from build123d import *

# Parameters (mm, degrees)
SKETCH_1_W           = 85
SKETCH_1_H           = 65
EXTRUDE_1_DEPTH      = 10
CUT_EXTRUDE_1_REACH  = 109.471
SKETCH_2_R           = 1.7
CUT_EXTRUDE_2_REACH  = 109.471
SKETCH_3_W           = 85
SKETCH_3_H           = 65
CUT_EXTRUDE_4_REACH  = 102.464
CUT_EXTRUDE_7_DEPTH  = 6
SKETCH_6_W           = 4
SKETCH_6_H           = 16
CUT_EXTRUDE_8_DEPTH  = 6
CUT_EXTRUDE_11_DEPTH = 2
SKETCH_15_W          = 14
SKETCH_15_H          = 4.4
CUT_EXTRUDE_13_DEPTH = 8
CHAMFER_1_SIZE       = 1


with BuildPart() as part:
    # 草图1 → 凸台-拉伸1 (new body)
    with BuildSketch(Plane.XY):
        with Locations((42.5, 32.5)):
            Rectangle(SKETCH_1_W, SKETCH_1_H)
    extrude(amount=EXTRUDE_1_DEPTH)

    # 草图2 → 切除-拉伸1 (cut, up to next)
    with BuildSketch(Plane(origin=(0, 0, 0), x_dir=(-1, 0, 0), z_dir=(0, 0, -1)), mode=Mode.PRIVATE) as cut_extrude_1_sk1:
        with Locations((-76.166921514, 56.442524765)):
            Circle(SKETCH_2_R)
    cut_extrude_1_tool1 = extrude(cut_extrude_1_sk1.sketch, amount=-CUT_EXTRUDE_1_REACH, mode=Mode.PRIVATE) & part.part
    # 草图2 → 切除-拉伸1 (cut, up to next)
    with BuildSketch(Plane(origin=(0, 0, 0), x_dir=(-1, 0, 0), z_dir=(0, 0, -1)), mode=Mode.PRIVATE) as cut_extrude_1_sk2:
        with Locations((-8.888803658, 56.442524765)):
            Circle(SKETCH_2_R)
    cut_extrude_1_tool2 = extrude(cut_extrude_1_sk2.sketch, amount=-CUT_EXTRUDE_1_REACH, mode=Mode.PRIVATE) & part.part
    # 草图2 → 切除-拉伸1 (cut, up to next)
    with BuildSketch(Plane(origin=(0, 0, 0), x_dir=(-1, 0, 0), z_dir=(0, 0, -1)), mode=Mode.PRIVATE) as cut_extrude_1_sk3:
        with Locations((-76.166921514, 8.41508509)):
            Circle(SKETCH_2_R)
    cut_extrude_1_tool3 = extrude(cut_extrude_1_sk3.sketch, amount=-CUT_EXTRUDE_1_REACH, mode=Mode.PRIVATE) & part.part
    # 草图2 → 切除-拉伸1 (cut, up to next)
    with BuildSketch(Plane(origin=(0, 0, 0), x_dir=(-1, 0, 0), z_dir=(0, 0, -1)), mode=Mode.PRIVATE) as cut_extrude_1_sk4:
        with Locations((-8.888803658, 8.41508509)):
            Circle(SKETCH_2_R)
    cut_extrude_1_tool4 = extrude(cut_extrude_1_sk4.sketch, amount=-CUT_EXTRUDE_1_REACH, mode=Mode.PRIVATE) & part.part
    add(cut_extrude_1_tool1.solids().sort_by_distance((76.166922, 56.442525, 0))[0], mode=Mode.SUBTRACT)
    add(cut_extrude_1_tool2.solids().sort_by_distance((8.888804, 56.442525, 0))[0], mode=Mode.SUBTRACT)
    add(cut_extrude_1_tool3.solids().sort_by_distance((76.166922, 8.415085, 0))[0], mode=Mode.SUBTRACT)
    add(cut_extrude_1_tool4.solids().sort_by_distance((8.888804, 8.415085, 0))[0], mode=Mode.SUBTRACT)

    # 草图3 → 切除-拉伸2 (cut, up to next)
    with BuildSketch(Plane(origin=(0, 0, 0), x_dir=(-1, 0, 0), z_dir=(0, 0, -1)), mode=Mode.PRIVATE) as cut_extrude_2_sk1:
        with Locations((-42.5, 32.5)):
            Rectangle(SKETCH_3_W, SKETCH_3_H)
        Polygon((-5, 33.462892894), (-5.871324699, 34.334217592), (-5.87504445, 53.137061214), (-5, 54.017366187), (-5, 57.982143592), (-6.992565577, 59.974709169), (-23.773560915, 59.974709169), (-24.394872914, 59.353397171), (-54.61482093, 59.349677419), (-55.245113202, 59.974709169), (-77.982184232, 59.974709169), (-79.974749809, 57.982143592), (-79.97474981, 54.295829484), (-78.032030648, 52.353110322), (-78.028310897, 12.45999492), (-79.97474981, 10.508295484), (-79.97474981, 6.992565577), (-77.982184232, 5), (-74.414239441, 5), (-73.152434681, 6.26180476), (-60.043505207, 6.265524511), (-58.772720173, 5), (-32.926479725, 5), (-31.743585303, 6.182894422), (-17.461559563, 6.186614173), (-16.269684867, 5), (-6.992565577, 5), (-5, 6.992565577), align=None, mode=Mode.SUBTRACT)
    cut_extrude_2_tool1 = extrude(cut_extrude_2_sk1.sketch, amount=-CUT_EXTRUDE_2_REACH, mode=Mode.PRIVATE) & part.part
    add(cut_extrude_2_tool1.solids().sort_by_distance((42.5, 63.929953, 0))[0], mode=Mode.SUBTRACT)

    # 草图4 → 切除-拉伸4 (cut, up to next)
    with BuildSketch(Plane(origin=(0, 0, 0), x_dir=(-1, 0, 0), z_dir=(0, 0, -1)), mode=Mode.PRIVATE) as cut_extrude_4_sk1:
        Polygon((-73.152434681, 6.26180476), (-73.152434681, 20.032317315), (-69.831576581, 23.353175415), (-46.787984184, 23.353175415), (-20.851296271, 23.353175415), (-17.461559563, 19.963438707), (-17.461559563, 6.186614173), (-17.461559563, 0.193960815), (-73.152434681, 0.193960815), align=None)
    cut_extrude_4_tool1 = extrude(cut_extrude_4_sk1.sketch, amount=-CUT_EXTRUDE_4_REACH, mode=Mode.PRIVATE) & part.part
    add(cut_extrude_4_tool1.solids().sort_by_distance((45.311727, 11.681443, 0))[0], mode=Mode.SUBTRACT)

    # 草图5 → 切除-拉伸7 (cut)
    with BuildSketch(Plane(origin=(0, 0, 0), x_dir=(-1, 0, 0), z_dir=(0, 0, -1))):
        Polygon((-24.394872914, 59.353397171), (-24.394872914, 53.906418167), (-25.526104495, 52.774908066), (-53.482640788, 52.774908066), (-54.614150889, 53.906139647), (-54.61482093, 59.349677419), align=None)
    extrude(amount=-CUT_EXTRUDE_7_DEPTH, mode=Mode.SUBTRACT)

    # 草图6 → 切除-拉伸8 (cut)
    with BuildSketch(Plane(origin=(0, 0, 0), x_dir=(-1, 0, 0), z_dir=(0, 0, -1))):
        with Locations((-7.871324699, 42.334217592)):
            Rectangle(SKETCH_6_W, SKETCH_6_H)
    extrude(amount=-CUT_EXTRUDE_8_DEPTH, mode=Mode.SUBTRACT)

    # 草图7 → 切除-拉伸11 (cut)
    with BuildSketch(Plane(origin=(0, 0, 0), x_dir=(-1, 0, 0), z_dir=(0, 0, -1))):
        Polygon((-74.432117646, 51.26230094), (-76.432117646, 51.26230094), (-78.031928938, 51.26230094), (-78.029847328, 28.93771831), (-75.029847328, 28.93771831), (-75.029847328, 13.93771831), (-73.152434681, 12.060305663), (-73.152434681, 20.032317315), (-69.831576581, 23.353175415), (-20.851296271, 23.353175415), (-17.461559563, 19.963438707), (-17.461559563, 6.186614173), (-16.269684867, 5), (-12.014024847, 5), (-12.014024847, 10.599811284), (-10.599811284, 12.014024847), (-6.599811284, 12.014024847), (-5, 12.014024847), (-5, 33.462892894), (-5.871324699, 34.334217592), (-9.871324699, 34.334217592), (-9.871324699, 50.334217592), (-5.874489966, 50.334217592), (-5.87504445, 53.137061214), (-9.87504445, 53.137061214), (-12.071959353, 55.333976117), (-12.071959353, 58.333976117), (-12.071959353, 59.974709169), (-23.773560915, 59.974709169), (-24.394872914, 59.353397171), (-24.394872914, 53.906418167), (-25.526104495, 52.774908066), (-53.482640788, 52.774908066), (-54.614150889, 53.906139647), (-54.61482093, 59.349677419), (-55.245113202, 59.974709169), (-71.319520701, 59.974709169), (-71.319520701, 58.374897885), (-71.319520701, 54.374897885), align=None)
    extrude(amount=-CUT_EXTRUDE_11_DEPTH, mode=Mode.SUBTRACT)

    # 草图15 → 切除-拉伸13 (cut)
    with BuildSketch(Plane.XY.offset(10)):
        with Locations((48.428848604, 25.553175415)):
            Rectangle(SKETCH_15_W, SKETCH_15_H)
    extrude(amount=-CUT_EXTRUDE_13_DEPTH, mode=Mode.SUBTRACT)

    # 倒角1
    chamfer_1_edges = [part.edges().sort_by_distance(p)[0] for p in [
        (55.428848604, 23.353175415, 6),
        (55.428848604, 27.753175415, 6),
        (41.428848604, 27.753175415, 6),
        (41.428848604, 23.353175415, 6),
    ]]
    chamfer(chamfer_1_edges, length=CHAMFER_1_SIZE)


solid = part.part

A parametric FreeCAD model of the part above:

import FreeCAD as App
import Part
import Sketcher
Q = App.Units.Quantity


def edges_at(feature, points):
    """Names of the edges that pass closest to the given points."""
    edges = feature.Shape.Edges
    near = lambda p: min(range(len(edges)), key=lambda i: edges[i].distToShape(Part.Vertex(*p))[0])
    return sorted({f"Edge{near(p) + 1}" for p in points})


def add_polygon(sketch, points):
    """Adds a closed chain of lines whose ends are joined by coincident constraints."""
    first, n = sketch.GeometryCount, len(points)
    for a, b in zip(points, points[1:] + points[:1]):
        sketch.addGeometry(Part.LineSegment(App.Vector(*a, 0), App.Vector(*b, 0)), False)
    for i in range(n):
        sketch.addConstraint(Sketcher.Constraint("Coincident", first + i, 2, first + (i + 1) % n, 1))

doc = App.newDocument("Part")
body = doc.addObject("PartDesign::Body", "Body")

sketch1 = doc.addObject("Sketcher::SketchObject", "Sketch")
body.addObject(sketch1)
sketch1.AttachmentSupport = (doc.XY_Plane, [""])
sketch1.MapMode = "FlatFace"
add_polygon(sketch1, [(0, 65), (0, 0), (85, 0), (85, 65)])
sketch1.addConstraint([
    Sketcher.Constraint("Vertical", 0),
    Sketcher.Constraint("Horizontal", 1),
    Sketcher.Constraint("Vertical", 2),
    Sketcher.Constraint("Horizontal", 3),
    Sketcher.Constraint("Coincident", 0, 2, -1, 1),
    Sketcher.Constraint("DistanceX", 1, 1, 1, 2, Q("85 mm")),
    Sketcher.Constraint("DistanceY", 0, 2, 0, 1, Q("65 mm")),
])
pad1 = doc.addObject("PartDesign::Pad", "Pad")
body.addObject(pad1)
pad1.Profile = sketch1
pad1.Length = 10

sketch2 = doc.addObject("Sketcher::SketchObject", "Sketch001")
body.addObject(sketch2)
sketch2.AttachmentSupport = (doc.XY_Plane, [""])
sketch2.MapMode = "FlatFace"
sketch2.addGeometry(Part.Circle(App.Vector(76.166922, 56.442525, 0), App.Vector(0, 0, 1), 1.7), False)
sketch2.addConstraint([
    Sketcher.Constraint("Diameter", 0, Q("3.4 mm")),
    Sketcher.Constraint("DistanceX", -1, 1, 0, 3, Q("76.166922 mm")),
    Sketcher.Constraint("DistanceY", -1, 1, 0, 3, Q("56.442525 mm")),
])
pocket1 = doc.addObject("PartDesign::Pocket", "Pocket")
body.addObject(pocket1)
pocket1.Profile = sketch2
pocket1.Type = "UpToFirst"
pocket1.Reversed = True

sketch3 = doc.addObject("Sketcher::SketchObject", "Sketch002")
body.addObject(sketch3)
sketch3.AttachmentSupport = (doc.XY_Plane, [""])
sketch3.MapMode = "FlatFace"
sketch3.addGeometry(Part.Circle(App.Vector(8.888804, 56.442525, 0), App.Vector(0, 0, 1), 1.7), False)
sketch3.addConstraint([
    Sketcher.Constraint("Diameter", 0, Q("3.4 mm")),
    Sketcher.Constraint("DistanceX", -1, 1, 0, 3, Q("8.888804 mm")),
    Sketcher.Constraint("DistanceY", -1, 1, 0, 3, Q("56.442525 mm")),
])
pocket2 = doc.addObject("PartDesign::Pocket", "Pocket001")
body.addObject(pocket2)
pocket2.Profile = sketch3
pocket2.Type = "UpToFirst"
pocket2.Reversed = True

sketch4 = doc.addObject("Sketcher::SketchObject", "Sketch003")
body.addObject(sketch4)
sketch4.AttachmentSupport = (doc.XY_Plane, [""])
sketch4.MapMode = "FlatFace"
sketch4.addGeometry(Part.Circle(App.Vector(76.166922, 8.415085, 0), App.Vector(0, 0, 1), 1.7), False)
sketch4.addConstraint([
    Sketcher.Constraint("Diameter", 0, Q("3.4 mm")),
    Sketcher.Constraint("DistanceX", -1, 1, 0, 3, Q("76.166922 mm")),
    Sketcher.Constraint("DistanceY", -1, 1, 0, 3, Q("8.415085 mm")),
])
pocket3 = doc.addObject("PartDesign::Pocket", "Pocket002")
body.addObject(pocket3)
pocket3.Profile = sketch4
pocket3.Type = "UpToFirst"
pocket3.Reversed = True

sketch5 = doc.addObject("Sketcher::SketchObject", "Sketch004")
body.addObject(sketch5)
sketch5.AttachmentSupport = (doc.XY_Plane, [""])
sketch5.MapMode = "FlatFace"
sketch5.addGeometry(Part.Circle(App.Vector(8.888804, 8.415085, 0), App.Vector(0, 0, 1), 1.7), False)
sketch5.addConstraint([
    Sketcher.Constraint("Diameter", 0, Q("3.4 mm")),
    Sketcher.Constraint("DistanceX", -1, 1, 0, 3, Q("8.888804 mm")),
    Sketcher.Constraint("DistanceY", -1, 1, 0, 3, Q("8.415085 mm")),
])
pocket4 = doc.addObject("PartDesign::Pocket", "Pocket003")
body.addObject(pocket4)
pocket4.Profile = sketch5
pocket4.Type = "UpToFirst"
pocket4.Reversed = True

sketch6 = doc.addObject("Sketcher::SketchObject", "Sketch005")
body.addObject(sketch6)
sketch6.AttachmentSupport = (doc.XY_Plane, [""])
sketch6.MapMode = "FlatFace"
add_polygon(sketch6, [(85, 65), (85, 0), (0, 0), (0, 65)])
add_polygon(sketch6, [(5.871325, 34.334218), (5, 33.462893), (5, 6.992566), (6.992566, 5), (16.269685, 5), (17.46156, 6.186614), (31.743585, 6.182894), (32.92648, 5), (58.77272, 5), (60.043505, 6.265525), (73.152435, 6.261805), (74.414239, 5), (77.982184, 5), (79.97475, 6.992566), (79.97475, 10.508295), (78.028311, 12.459995), (78.032031, 52.35311), (79.97475, 54.295829), (79.97475, 57.982144), (77.982184, 59.974709), (55.245113, 59.974709), (54.614821, 59.349677), (24.394873, 59.353397), (23.773561, 59.974709), (6.992566, 59.974709), (5, 57.982144), (5, 54.017366), (5.875044, 53.137061)])
sketch6.addConstraint([
    Sketcher.Constraint("Vertical", 0),
    Sketcher.Constraint("Horizontal", 1),
    Sketcher.Constraint("Vertical", 2),
    Sketcher.Constraint("Horizontal", 3),
    Sketcher.Constraint("Vertical", 5),
    Sketcher.Constraint("Horizontal", 7),
    Sketcher.Constraint("Horizontal", 11),
    Sketcher.Constraint("Horizontal", 15),
    Sketcher.Constraint("Vertical", 17),
    Sketcher.Constraint("Vertical", 21),
    Sketcher.Constraint("Horizontal", 23),
    Sketcher.Constraint("Horizontal", 27),
    Sketcher.Constraint("Vertical", 29),
    Sketcher.Constraint("Coincident", 1, 2, -1, 1),
    Sketcher.Constraint("Perpendicular", 4, 6),
    Sketcher.Constraint("Parallel", 6, 10),
    Sketcher.Constraint("Parallel", 10, 14),
    Sketcher.Constraint("Perpendicular", 14, 16),
    Sketcher.Constraint("Parallel", 16, 20),
    Sketcher.Constraint("Perpendicular", 20, 22),
    Sketcher.Constraint("Parallel", 22, 26),
    Sketcher.Constraint("Perpendicular", 26, 28),
    Sketcher.Constraint("Horizontal", 7, 2, 10, 2),
    Sketcher.Constraint("Horizontal", 11, 2, 14, 2),
    Sketcher.Constraint("Horizontal", 5, 2, 16, 2),
    Sketcher.Constraint("Horizontal", 23, 2, 26, 2),
    Sketcher.Constraint("Horizontal", 21, 2, 28, 2),
    Sketcher.Constraint("Vertical", 17, 2, 20, 2),
    Sketcher.Constraint("Vertical", 15, 2, 22, 2),
    Sketcher.Constraint("Vertical", 6, 2, 27, 2),
    Sketcher.Constraint("Vertical", 5, 2, 28, 2),
    Sketcher.Constraint("DistanceX", 1, 2, 1, 1, Q("85 mm")),
    Sketcher.Constraint("DistanceY", 0, 2, 0, 1, Q("65 mm")),
    Sketcher.Constraint("DistanceX", -1, 1, 4, 2, Q("5 mm")),
    Sketcher.Constraint("DistanceY", -1, 1, 6, 2, Q("5 mm")),
    Sketcher.Constraint("DistanceX", 7, 1, 7, 2, Q("9.277119 mm")),
    Sketcher.Constraint("DistanceX", 11, 1, 11, 2, Q("25.84624 mm")),
    Sketcher.Constraint("DistanceX", 23, 2, 23, 1, Q("22.737071 mm")),
    Sketcher.Constraint("DistanceY", 17, 1, 17, 2, Q("3.51573 mm")),
    Sketcher.Constraint("DistanceX", 7, 2, 9, 2, Q("15.4739 mm")),
    Sketcher.Constraint("DistanceY", 17, 2, 18, 2, Q("1.951699 mm")),
    Sketcher.Constraint("DistanceY", 19, 2, 22, 2, Q("7.621599 mm")),
    Sketcher.Constraint("Distance", 4, Q("1.232239 mm")),
    Sketcher.Constraint("Distance", 8, Q("1.68185 mm")),
    Sketcher.Constraint("Distance", 13, Q("13.10893 mm")),
    Sketcher.Constraint("Distance", 14, Q("1.784461 mm")),
    Sketcher.Constraint("Distance", 20, Q("2.74742 mm")),
    Sketcher.Constraint("Distance", 25, Q("30.219948 mm")),
    Sketcher.Constraint("DistanceX", 15, 1, 15, 2, Q("3.567945 mm")),
    Sketcher.Constraint("DistanceX", 27, 2, 27, 1, Q("16.780995 mm")),
    Sketcher.Constraint("DistanceY", 5, 2, 5, 1, Q("26.470327 mm")),
    Sketcher.Constraint("DistanceY", 21, 1, 21, 2, Q("3.686314 mm")),
    Sketcher.Constraint("DistanceY", 29, 2, 29, 1, Q("3.964777 mm")),
    Sketcher.Constraint("DistanceX", -1, 1, 8, 2, Q("17.46156 mm")),
    Sketcher.Constraint("DistanceX", -1, 1, 10, 2, Q("32.92648 mm")),
    Sketcher.Constraint("DistanceX", -1, 1, 14, 2, Q("74.414239 mm")),
    Sketcher.Constraint("DistanceX", -1, 1, 18, 2, Q("78.028311 mm")),
    Sketcher.Constraint("DistanceY", -1, 1, 19, 2, Q("52.35311 mm")),
    Sketcher.Constraint("DistanceX", -1, 1, 24, 2, Q("54.614821 mm")),
    Sketcher.Constraint("DistanceY", -1, 1, 30, 2, Q("53.137061 mm")),
    Sketcher.Constraint("DistanceY", 9, 2, 12, 2, Q("0.08263 mm")),
    Sketcher.Constraint("DistanceY", 24, 2, 23, 2, Q("0.625032 mm")),
    Sketcher.Constraint("DistanceX", 30, 2, 27, 2, Q("1.117521 mm")),
])
pocket5 = doc.addObject("PartDesign::Pocket", "Pocket004")
body.addObject(pocket5)
pocket5.Profile = sketch6
pocket5.Type = "UpToFirst"
pocket5.Reversed = True

sketch7 = doc.addObject("Sketcher::SketchObject", "Sketch006")
body.addObject(sketch7)
sketch7.AttachmentSupport = (doc.XY_Plane, [""])
sketch7.MapMode = "FlatFace"
add_polygon(sketch7, [(73.152435, 20.032317), (73.152435, 0.193961), (17.46156, 0.193961), (17.46156, 19.963439), (20.851296, 23.353175), (69.831577, 23.353175)])
sketch7.addConstraint([
    Sketcher.Constraint("Vertical", 0),
    Sketcher.Constraint("Horizontal", 1),
    Sketcher.Constraint("Vertical", 2),
    Sketcher.Constraint("Horizontal", 4),
    Sketcher.Constraint("Perpendicular", 3, 5),
    Sketcher.Constraint("Angle", 3, Q("45 deg")),
    Sketcher.Constraint("DistanceX", 4, 1, 4, 2, Q("48.98028 mm")),
    Sketcher.Constraint("Distance", 3, Q("4.793812 mm")),
    Sketcher.Constraint("DistanceX", 1, 2, 1, 1, Q("55.690875 mm")),
    Sketcher.Constraint("DistanceY", 0, 2, 0, 1, Q("19.838356 mm")),
    Sketcher.Constraint("DistanceY", -1, 1, 0, 2, Q("0.193961 mm")),
    Sketcher.Constraint("DistanceX", -1, 1, 1, 2, Q("17.46156 mm")),
])
pocket6 = doc.addObject("PartDesign::Pocket", "Pocket005")
body.addObject(pocket6)
pocket6.Profile = sketch7
pocket6.Type = "UpToFirst"
pocket6.Reversed = True

sketch8 = doc.addObject("Sketcher::SketchObject", "Sketch007")
body.addObject(sketch8)
sketch8.AttachmentSupport = (doc.XY_Plane, [""])
sketch8.MapMode = "FlatFace"
add_polygon(sketch8, [(24.394873, 53.906418), (24.394873, 59.353397), (54.614821, 59.349677), (54.614151, 53.90614), (53.482641, 52.774908), (25.526104, 52.774908)])
sketch8.addConstraint([
    Sketcher.Constraint("Vertical", 0),
    Sketcher.Constraint("Horizontal", 4),
    Sketcher.Constraint("Perpendicular", 1, 2),
    Sketcher.Constraint("Perpendicular", 3, 5),
    Sketcher.Constraint("Equal", 3, 5),
    Sketcher.Constraint("Distance", 3, Q("1.6 mm")),
    Sketcher.Constraint("DistanceY", 0, 1, 0, 2, Q("5.446979 mm")),
    Sketcher.Constraint("Distance", 1, Q("30.219948 mm")),
    Sketcher.Constraint("DistanceX", 4, 2, 4, 1, Q("27.956536 mm")),
    Sketcher.Constraint("DistanceX", -1, 1, 1, 2, Q("54.614821 mm")),
    Sketcher.Constraint("DistanceY", -1, 1, 2, 2, Q("53.90614 mm")),
    Sketcher.Constraint("DistanceX", -1, 1, 3, 2, Q("53.482641 mm")),
])
pocket7 = doc.addObject("PartDesign::Pocket", "Pocket006")
body.addObject(pocket7)
pocket7.Profile = sketch8
pocket7.Length = 6
pocket7.Reversed = True

sketch9 = doc.addObject("Sketcher::SketchObject", "Sketch008")
body.addObject(sketch9)
sketch9.AttachmentSupport = (doc.XY_Plane, [""])
sketch9.MapMode = "FlatFace"
add_polygon(sketch9, [(9.871325, 50.334218), (9.871325, 34.334218), (5.871325, 34.334218), (5.871325, 50.334218)])
sketch9.addConstraint([
    Sketcher.Constraint("Vertical", 0),
    Sketcher.Constraint("Horizontal", 1),
    Sketcher.Constraint("Vertical", 2),
    Sketcher.Constraint("Horizontal", 3),
    Sketcher.Constraint("DistanceX", 1, 2, 1, 1, Q("4 mm")),
    Sketcher.Constraint("DistanceY", 0, 2, 0, 1, Q("16 mm")),
    Sketcher.Constraint("DistanceX", -1, 1, 0, 2, Q("9.871325 mm")),
    Sketcher.Constraint("DistanceY", -1, 1, 0, 2, Q("34.334218 mm")),
])
pocket8 = doc.addObject("PartDesign::Pocket", "Pocket007")
body.addObject(pocket8)
pocket8.Profile = sketch9
pocket8.Length = 6
pocket8.Reversed = True

sketch10 = doc.addObject("Sketcher::SketchObject", "Sketch009")
body.addObject(sketch10)
sketch10.AttachmentSupport = (doc.XY_Plane, [""])
sketch10.MapMode = "FlatFace"
add_polygon(sketch10, [(74.432118, 51.262301), (78.031929, 51.262301), (78.029847, 28.937718), (75.029847, 28.937718), (75.029847, 13.937718), (73.152435, 12.060306), (73.152435, 20.032317), (69.831577, 23.353175), (20.851296, 23.353175), (17.46156, 19.963439), (17.46156, 6.186614), (16.269685, 5), (12.014025, 5), (12.014025, 10.599811), (10.599811, 12.014025), (5, 12.014025), (5, 33.462893), (5.871325, 34.334218), (9.871325, 34.334218), (9.871325, 50.334218), (5.87449, 50.334218), (5.875044, 53.137061), (9.875044, 53.137061), (12.071959, 55.333976), (12.071959, 59.974709), (23.773561, 59.974709), (24.394873, 59.353397), (24.394873, 53.906418), (25.526104, 52.774908), (53.482641, 52.774908), (54.614151, 53.90614), (54.614821, 59.349677), (55.245113, 59.974709), (71.319521, 59.974709), (71.319521, 54.374898)])
sketch10.addConstraint([
    Sketcher.Constraint("Horizontal", 0),
    Sketcher.Constraint("Horizontal", 2),
    Sketcher.Constraint("Vertical", 3),
    Sketcher.Constraint("Vertical", 5),
    Sketcher.Constraint("Horizontal", 7),
    Sketcher.Constraint("Vertical", 9),
    Sketcher.Constraint("Horizontal", 11),
    Sketcher.Constraint("Vertical", 12),
    Sketcher.Constraint("Horizontal", 14),
    Sketcher.Constraint("Vertical", 15),
    Sketcher.Constraint("Horizontal", 17),
    Sketcher.Constraint("Vertical", 18),
    Sketcher.Constraint("Horizontal", 19),
    Sketcher.Constraint("Horizontal", 21),
    Sketcher.Constraint("Vertical", 23),
    Sketcher.Constraint("Horizontal", 24),
    Sketcher.Constraint("Vertical", 26),
    Sketcher.Constraint("Horizontal", 28),
    Sketcher.Constraint("Horizontal", 32),
    Sketcher.Constraint("Vertical", 33),
    Sketcher.Constraint("Perpendicular", 4, 6),
    Sketcher.Constraint("Perpendicular", 6, 8),
    Sketcher.Constraint("Perpendicular", 8, 13),
    Sketcher.Constraint("Perpendicular", 13, 16),
    Sketcher.Constraint("Parallel", 16, 22),
    Sketcher.Constraint("Perpendicular", 22, 25),
    Sketcher.Constraint("Perpendicular", 27, 29),
    Sketcher.Constraint("Parallel", 25, 34),
    Sketcher.Constraint("Horizontal", 24, 2, 31, 2),
    Sketcher.Constraint("Equal", 17, 21),
    Sketcher.Constraint("Equal", 14, 12),
    Sketcher.Constraint("Equal", 12, 33),
    Sketcher.Constraint("Equal", 27, 29),
    Sketcher.Constraint("DistanceX", 2, 2, 2, 1, Q("3 mm")),
    Sketcher.Constraint("DistanceX", 17, 1, 17, 2, Q("4 mm")),
    Sketcher.Constraint("DistanceY", 3, 2, 3, 1, Q("15 mm")),
    Sketcher.Constraint("DistanceY", 18, 1, 18, 2, Q("16 mm")),
    Sketcher.Constraint("Angle", 4, Q("-135 deg")),
    Sketcher.Constraint("Distance", 13, Q("2 mm")),
    Sketcher.Constraint("DistanceY", -1, 1, 10, 2, Q("5 mm")),
    Sketcher.Constraint("DistanceX", -1, 1, 14, 2, Q("5 mm")),
    Sketcher.Constraint("Distance", 27, Q("1.6 mm")),
    Sketcher.Constraint("DistanceX", 24, 1, 24, 2, Q("11.701602 mm")),
    Sketcher.Constraint("DistanceX", 0, 1, 0, 2, Q("3.599811 mm")),
    Sketcher.Constraint("DistanceX", 7, 2, 7, 1, Q("48.98028 mm")),
    Sketcher.Constraint("DistanceX", 11, 2, 11, 1, Q("4.25566 mm")),
    Sketcher.Constraint("DistanceX", 14, 2, 14, 1, Q("5.599811 mm")),
    Sketcher.Constraint("DistanceY", 5, 1, 5, 2, Q("7.972012 mm")),
    Sketcher.Constraint("DistanceY", 15, 1, 15, 2, Q("21.448868 mm")),
    Sketcher.Constraint("DistanceY", 26, 2, 26, 1, Q("5.446979 mm")),
    Sketcher.Constraint("DistanceY", -1, 1, 0, 2, Q("51.262301 mm")),
    Sketcher.Constraint("DistanceY", 3, 2, 5, 2, Q("6.094599 mm")),
    Sketcher.Constraint("DistanceY", 27, 2, 24, 2, Q("7.199801 mm")),
    Sketcher.Constraint("DistanceX", 30, 2, 32, 2, Q("16.7047 mm")),
    Sketcher.Constraint("Distance", 8, Q("4.793812 mm")),
    Sketcher.Constraint("Distance", 10, Q("1.68185 mm")),
    Sketcher.Constraint("Distance", 16, Q("1.232239 mm")),
    Sketcher.Constraint("DistanceX", 19, 2, 19, 1, Q("3.996835 mm")),
    Sketcher.Constraint("DistanceX", 28, 1, 28, 2, Q("27.956536 mm")),
    Sketcher.Constraint("DistanceX", 32, 1, 32, 2, Q("16.074407 mm")),
    Sketcher.Constraint("DistanceY", 9, 2, 9, 1, Q("13.776825 mm")),
    Sketcher.Constraint("DistanceY", 23, 1, 23, 2, Q("4.640733 mm")),
    Sketcher.Constraint("DistanceX", -1, 1, 0, 2, Q("78.031929 mm")),
    Sketcher.Constraint("DistanceY", -1, 1, 1, 2, Q("28.937718 mm")),
    Sketcher.Constraint("DistanceX", -1, 1, 8, 2, Q("17.46156 mm")),
    Sketcher.Constraint("DistanceY", -1, 1, 20, 2, Q("53.137061 mm")),
    Sketcher.Constraint("DistanceX", -1, 1, 22, 2, Q("12.071959 mm")),
    Sketcher.Constraint("DistanceY", -1, 1, 23, 2, Q("59.974709 mm")),
    Sketcher.Constraint("DistanceY", -1, 1, 26, 2, Q("53.906418 mm")),
    Sketcher.Constraint("DistanceY", 28, 2, 30, 2, Q("6.574769 mm")),
])
pocket9 = doc.addObject("PartDesign::Pocket", "Pocket008")
body.addObject(pocket9)
pocket9.Profile = sketch10
pocket9.Length = 2
pocket9.Reversed = True

sketch11 = doc.addObject("Sketcher::SketchObject", "Sketch010")
body.addObject(sketch11)
sketch11.AttachmentSupport = (doc.XY_Plane, [""])
sketch11.MapMode = "FlatFace"
sketch11.AttachmentOffset = App.Placement(App.Vector(0, 0, 10), App.Rotation())
add_polygon(sketch11, [(41.428849, 27.753175), (41.428849, 23.353175), (55.428849, 23.353175), (55.428849, 27.753175)])
sketch11.addConstraint([
    Sketcher.Constraint("Vertical", 0),
    Sketcher.Constraint("Horizontal", 1),
    Sketcher.Constraint("Vertical", 2),
    Sketcher.Constraint("Horizontal", 3),
    Sketcher.Constraint("DistanceX", 1, 1, 1, 2, Q("14 mm")),
    Sketcher.Constraint("DistanceY", 0, 2, 0, 1, Q("4.4 mm")),
    Sketcher.Constraint("DistanceX", -1, 1, 0, 2, Q("41.428849 mm")),
    Sketcher.Constraint("DistanceY", -1, 1, 0, 2, Q("23.353175 mm")),
])
pocket10 = doc.addObject("PartDesign::Pocket", "Pocket009")
body.addObject(pocket10)
pocket10.Profile = sketch11
pocket10.Length = 8
doc.recompute()

chamfer = doc.addObject("PartDesign::Chamfer", "Chamfer")
body.addObject(chamfer)
chamfer.Base = (pocket10, edges_at(pocket10, [
    (55.429, 23.353, 6),
    (55.429, 27.753, 6),
    (41.429, 27.753, 6),
    (41.429, 23.353, 6),
]))
chamfer.Size = 1

doc.recompute()
